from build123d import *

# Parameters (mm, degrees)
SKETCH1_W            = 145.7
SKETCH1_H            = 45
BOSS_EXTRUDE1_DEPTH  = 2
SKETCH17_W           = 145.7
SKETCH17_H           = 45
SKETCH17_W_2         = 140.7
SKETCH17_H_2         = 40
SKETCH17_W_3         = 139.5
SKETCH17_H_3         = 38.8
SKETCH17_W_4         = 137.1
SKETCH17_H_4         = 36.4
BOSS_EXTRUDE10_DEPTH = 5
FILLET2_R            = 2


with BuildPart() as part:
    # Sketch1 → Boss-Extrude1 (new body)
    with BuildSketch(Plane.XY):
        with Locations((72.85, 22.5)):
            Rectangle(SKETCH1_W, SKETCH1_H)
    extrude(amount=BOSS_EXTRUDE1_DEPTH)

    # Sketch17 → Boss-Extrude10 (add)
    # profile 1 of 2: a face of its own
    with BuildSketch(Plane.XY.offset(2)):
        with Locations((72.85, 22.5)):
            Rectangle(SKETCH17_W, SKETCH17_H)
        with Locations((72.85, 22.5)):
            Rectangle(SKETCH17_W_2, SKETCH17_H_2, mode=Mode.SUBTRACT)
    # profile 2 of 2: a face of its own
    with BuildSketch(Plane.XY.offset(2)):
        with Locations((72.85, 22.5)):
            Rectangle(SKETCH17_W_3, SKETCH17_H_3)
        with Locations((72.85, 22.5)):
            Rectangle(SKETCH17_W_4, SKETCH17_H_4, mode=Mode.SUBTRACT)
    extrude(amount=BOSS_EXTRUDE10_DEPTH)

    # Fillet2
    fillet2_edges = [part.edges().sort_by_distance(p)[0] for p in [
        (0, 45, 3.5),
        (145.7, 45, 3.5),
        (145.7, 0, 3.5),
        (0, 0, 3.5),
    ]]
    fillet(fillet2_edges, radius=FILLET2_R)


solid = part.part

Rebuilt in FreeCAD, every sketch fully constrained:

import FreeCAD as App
import Part
import Sketcher
from FreeCAD import Vector


def edges_at(feature, points):
    """Names of the edges that pass closest to the given points."""
    edges = feature.Shape.Edges
    near = lambda p: min(range(len(edges)), key=lambda i: edges[i].distToShape(Part.Vertex(*p))[0])
    return sorted({f"Edge{near(p) + 1}" for p in points})


def add_polygon(sketch, points):
    """Adds a closed chain of lines whose ends are joined by coincident constraints."""
    first, n = sketch.GeometryCount, len(points)
    for a, b in zip(points, points[1:] + points[:1]):
        sketch.addGeometry(Part.LineSegment(App.Vector(*a, 0), App.Vector(*b, 0)), False)
    for i in range(n):
        sketch.addConstraint(Sketcher.Constraint("Coincident", first + i, 2, first + (i + 1) % n, 1))

doc = App.newDocument("Part")
body = doc.addObject("PartDesign::Body", "Body")

sketch1 = body.newObject("Sketcher::SketchObject", "Sketch")
sketch1.AttachmentSupport = (doc.getObject("XY_Plane"), [""])
sketch1.MapMode = "FlatFace"
add_polygon(sketch1, [(0, 45), (0, 0), (146, 0), (146, 45)])
sketch1.addConstraint([
    Sketcher.Constraint("Vertical", 0),
    Sketcher.Constraint("Horizontal", 1),
    Sketcher.Constraint("Vertical", 2),
    Sketcher.Constraint("Horizontal", 3),
    Sketcher.Constraint("Coincident", 0, 2, -1, 1),
    Sketcher.Constraint("DistanceY", 0, 2, 0, 1, 45.0),
    Sketcher.Constraint("DistanceX", 1, 1, 1, 2, 145.7),
])
pad1 = body.newObject("PartDesign::Pad", "Pad")
pad1.Profile = sketch1
pad1.Length = 2

sketch2 = body.newObject("Sketcher::SketchObject", "Sketch001")
sketch2.AttachmentSupport = (doc.getObject("XY_Plane"), [""])
sketch2.MapMode = "FlatFace"
sketch2.AttachmentOffset = App.Placement(Vector(0, 0, 2), App.Rotation())
add_polygon(sketch2, [(0, 45), (0, 0), (146, 0), (146, 45)])
add_polygon(sketch2, [(143, 2), (2, 2), (2, 42), (143, 42)])
add_polygon(sketch2, [(3, 42), (3, 3), (143, 3), (143, 42)])
add_polygon(sketch2, [(141, 4), (4, 4), (4, 41), (141, 41)])
sketch2.addConstraint([
    Sketcher.Constraint("Vertical", 0),
    Sketcher.Constraint("Horizontal", 1),
    Sketcher.Constraint("Vertical", 2),
    Sketcher.Constraint("Horizontal", 3),
    Sketcher.Constraint("Horizontal", 4),
    Sketcher.Constraint("Vertical", 5),
    Sketcher.Constraint("Horizontal", 6),
    Sketcher.Constraint("Vertical", 7),
    Sketcher.Constraint("Vertical", 8),
    Sketcher.Constraint("Horizontal", 9),
    Sketcher.Constraint("Vertical", 10),
    Sketcher.Constraint("Horizontal", 11),
    Sketcher.Constraint("Horizontal", 12),
    Sketcher.Constraint("Vertical", 13),
    Sketcher.Constraint("Horizontal", 14),
    Sketcher.Constraint("Vertical", 15),
    Sketcher.Constraint("Coincident", 0, 2, -1, 1),
    Sketcher.Constraint("DistanceY", 0, 2, 0, 1, 45.0),
    Sketcher.Constraint("DistanceY", 5, 1, 5, 2, 40.0),
    Sketcher.Constraint("DistanceX", 1, 1, 1, 2, 145.7),
    Sketcher.Constraint("DistanceX", 4, 2, 4, 1, 140.7),
    Sketcher.Constraint("DistanceX", 9, 1, 9, 2, 139.5),
    Sketcher.Constraint("DistanceX", 12, 2, 12, 1, 137.1),
    Sketcher.Constraint("DistanceY", 8, 2, 8, 1, 38.8),
    Sketcher.Constraint("DistanceY", 13, 1, 13, 2, 36.4),
    Sketcher.Constraint("DistanceX", -1, 1, 4, 2, 2.5),
    Sketcher.Constraint("DistanceY", -1, 1, 4, 2, 2.5),
    Sketcher.Constraint("DistanceX", -1, 1, 8, 2, 3.1),
    Sketcher.Constraint("DistanceY", -1, 1, 8, 2, 3.1),
    Sketcher.Constraint("DistanceX", -1, 1, 12, 2, 4.3),
    Sketcher.Constraint("DistanceY", -1, 1, 12, 2, 4.3),
])
pad2 = body.newObject("PartDesign::Pad", "Pad001")
pad2.Profile = sketch2
pad2.Length = 5
doc.recompute()

fillet = body.newObject("PartDesign::Fillet", "Fillet")
fillet.Base = (pad2, edges_at(pad2, [
    (0, 45, 3.5),
    (145.7, 45, 3.5),
    (145.7, 0, 3.5),
    (0, 0, 3.5),
]))
fillet.Radius = 2

doc.recompute()
